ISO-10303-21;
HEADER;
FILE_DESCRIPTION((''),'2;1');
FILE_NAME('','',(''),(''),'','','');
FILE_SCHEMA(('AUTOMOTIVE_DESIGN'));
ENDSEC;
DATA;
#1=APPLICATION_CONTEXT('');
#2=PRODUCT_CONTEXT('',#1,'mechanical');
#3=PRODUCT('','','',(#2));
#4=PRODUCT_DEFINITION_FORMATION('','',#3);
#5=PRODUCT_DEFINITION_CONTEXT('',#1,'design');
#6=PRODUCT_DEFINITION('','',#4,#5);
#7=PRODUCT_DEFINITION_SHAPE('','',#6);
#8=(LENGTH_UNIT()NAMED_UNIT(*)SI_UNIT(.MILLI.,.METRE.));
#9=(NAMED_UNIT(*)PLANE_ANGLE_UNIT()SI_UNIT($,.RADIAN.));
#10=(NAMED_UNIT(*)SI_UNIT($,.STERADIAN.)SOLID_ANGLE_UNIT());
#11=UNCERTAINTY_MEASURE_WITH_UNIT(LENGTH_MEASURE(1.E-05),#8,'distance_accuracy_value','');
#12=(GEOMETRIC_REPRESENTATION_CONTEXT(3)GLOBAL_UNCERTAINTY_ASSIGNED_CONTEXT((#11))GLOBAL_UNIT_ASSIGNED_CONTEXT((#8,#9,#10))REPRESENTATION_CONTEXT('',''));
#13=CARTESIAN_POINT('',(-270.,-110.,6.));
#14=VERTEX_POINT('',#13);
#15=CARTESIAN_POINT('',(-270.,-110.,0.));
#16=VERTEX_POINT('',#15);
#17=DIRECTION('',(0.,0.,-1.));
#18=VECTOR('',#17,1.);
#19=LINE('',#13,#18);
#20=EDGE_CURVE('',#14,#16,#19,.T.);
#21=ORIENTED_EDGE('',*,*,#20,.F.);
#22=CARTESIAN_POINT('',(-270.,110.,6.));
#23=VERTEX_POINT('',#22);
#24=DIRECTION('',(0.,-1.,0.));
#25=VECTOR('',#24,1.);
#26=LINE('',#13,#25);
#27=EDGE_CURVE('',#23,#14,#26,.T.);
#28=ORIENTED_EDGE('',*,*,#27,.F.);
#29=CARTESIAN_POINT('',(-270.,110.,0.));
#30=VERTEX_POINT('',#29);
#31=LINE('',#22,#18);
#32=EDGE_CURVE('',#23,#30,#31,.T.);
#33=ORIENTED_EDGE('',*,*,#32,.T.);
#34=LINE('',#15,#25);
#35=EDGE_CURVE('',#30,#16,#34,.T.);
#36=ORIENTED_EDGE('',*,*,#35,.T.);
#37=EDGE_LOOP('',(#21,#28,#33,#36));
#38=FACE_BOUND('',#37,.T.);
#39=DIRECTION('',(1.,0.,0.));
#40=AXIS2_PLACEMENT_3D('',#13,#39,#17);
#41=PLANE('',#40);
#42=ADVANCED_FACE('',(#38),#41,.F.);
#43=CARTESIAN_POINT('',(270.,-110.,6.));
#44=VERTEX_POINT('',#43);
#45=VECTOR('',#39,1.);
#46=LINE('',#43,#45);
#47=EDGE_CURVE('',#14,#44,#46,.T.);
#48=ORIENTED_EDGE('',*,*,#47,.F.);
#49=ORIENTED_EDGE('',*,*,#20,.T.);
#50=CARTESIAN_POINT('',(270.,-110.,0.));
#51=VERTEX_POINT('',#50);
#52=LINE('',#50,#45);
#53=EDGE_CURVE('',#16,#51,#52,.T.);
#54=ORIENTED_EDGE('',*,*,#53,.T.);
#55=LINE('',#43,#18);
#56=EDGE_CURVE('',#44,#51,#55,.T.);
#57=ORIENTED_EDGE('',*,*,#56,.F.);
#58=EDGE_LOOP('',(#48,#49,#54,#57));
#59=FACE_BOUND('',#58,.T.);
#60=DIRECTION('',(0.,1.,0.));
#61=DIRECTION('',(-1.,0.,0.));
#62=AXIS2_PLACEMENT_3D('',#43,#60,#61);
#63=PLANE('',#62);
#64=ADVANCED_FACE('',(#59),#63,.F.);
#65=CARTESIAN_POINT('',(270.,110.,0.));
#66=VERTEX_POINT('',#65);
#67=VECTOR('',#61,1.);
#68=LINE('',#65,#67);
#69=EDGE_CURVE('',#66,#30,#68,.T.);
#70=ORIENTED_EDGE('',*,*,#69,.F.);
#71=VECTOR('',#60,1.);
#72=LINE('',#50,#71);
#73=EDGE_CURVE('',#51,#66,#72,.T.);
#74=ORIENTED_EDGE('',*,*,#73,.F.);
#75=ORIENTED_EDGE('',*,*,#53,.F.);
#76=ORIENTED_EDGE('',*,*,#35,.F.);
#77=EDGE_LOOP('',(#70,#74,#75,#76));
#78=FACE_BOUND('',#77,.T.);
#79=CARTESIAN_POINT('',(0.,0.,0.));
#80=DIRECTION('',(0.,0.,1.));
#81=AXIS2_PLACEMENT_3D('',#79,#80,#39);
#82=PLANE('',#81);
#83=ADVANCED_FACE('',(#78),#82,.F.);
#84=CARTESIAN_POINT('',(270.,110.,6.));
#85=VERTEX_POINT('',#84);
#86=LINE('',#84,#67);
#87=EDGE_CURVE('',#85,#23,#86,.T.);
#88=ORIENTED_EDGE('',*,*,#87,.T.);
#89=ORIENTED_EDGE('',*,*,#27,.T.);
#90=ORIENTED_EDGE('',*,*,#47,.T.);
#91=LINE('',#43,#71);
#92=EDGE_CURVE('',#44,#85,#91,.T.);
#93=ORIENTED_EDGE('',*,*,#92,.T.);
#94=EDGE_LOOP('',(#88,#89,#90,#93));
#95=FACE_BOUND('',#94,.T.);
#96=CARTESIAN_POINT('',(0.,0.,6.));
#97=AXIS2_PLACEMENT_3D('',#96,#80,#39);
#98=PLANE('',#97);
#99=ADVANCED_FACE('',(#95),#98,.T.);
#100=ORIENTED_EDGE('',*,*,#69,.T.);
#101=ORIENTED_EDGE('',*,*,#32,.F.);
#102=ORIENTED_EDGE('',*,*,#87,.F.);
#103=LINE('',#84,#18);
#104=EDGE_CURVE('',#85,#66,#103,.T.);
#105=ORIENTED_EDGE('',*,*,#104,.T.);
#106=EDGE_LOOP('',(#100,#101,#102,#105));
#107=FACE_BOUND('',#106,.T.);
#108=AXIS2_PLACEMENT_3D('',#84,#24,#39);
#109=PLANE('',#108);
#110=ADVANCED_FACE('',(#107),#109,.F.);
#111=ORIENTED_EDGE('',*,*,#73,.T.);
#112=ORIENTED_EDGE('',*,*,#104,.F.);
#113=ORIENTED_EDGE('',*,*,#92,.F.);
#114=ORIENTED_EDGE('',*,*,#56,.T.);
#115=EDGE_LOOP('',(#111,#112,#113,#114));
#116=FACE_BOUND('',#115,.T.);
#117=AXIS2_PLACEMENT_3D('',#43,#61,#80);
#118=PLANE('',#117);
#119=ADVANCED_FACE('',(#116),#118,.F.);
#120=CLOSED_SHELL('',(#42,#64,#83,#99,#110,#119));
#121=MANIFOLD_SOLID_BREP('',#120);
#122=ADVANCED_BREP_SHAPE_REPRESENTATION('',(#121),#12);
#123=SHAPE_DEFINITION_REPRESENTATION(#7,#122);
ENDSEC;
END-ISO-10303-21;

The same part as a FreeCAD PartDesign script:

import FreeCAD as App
import Part
import Sketcher

V = App.Vector


def add_polygon(sketch, points):
    """Adds a closed chain of lines whose ends are joined by coincident constraints."""
    first, n = sketch.GeometryCount, len(points)
    for a, b in zip(points, points[1:] + points[:1]):
        sketch.addGeometry(Part.LineSegment(App.Vector(*a, 0), App.Vector(*b, 0)), False)
    for i in range(n):
        sketch.addConstraint(Sketcher.Constraint("Coincident", first + i, 2, first + (i + 1) % n, 1))

doc = App.newDocument("Part")
body = doc.addObject("PartDesign::Body", "Body")

# Sketch on XY plane
sketch1 = doc.addObject("Sketcher::SketchObject", "Sketch")
body.addObject(sketch1)
sketch1.AttachmentSupport = (doc.XY_Plane, [""])
sketch1.MapMode = "FlatFace"
add_polygon(sketch1, [(-270, 110), (-270, -110), (270, -110), (270, 110)])  # lines 0-3
sketch1.addConstraint([
    Sketcher.Constraint("Vertical", 0),
    Sketcher.Constraint("Horizontal", 1),
    Sketcher.Constraint("Vertical", 2),
    Sketcher.Constraint("Horizontal", 3),
    Sketcher.Constraint("Symmetric", 0, 2, 2, 2, -1, 1),
    Sketcher.Constraint("DistanceX", 1, 1, 1, 2, 540.0),
    Sketcher.Constraint("DistanceY", 0, 2, 0, 1, 220.0),
])
pad1 = doc.addObject("PartDesign::Pad", "Pad")
body.addObject(pad1)
pad1.Profile = sketch1
pad1.Length = 6

doc.recompute()
